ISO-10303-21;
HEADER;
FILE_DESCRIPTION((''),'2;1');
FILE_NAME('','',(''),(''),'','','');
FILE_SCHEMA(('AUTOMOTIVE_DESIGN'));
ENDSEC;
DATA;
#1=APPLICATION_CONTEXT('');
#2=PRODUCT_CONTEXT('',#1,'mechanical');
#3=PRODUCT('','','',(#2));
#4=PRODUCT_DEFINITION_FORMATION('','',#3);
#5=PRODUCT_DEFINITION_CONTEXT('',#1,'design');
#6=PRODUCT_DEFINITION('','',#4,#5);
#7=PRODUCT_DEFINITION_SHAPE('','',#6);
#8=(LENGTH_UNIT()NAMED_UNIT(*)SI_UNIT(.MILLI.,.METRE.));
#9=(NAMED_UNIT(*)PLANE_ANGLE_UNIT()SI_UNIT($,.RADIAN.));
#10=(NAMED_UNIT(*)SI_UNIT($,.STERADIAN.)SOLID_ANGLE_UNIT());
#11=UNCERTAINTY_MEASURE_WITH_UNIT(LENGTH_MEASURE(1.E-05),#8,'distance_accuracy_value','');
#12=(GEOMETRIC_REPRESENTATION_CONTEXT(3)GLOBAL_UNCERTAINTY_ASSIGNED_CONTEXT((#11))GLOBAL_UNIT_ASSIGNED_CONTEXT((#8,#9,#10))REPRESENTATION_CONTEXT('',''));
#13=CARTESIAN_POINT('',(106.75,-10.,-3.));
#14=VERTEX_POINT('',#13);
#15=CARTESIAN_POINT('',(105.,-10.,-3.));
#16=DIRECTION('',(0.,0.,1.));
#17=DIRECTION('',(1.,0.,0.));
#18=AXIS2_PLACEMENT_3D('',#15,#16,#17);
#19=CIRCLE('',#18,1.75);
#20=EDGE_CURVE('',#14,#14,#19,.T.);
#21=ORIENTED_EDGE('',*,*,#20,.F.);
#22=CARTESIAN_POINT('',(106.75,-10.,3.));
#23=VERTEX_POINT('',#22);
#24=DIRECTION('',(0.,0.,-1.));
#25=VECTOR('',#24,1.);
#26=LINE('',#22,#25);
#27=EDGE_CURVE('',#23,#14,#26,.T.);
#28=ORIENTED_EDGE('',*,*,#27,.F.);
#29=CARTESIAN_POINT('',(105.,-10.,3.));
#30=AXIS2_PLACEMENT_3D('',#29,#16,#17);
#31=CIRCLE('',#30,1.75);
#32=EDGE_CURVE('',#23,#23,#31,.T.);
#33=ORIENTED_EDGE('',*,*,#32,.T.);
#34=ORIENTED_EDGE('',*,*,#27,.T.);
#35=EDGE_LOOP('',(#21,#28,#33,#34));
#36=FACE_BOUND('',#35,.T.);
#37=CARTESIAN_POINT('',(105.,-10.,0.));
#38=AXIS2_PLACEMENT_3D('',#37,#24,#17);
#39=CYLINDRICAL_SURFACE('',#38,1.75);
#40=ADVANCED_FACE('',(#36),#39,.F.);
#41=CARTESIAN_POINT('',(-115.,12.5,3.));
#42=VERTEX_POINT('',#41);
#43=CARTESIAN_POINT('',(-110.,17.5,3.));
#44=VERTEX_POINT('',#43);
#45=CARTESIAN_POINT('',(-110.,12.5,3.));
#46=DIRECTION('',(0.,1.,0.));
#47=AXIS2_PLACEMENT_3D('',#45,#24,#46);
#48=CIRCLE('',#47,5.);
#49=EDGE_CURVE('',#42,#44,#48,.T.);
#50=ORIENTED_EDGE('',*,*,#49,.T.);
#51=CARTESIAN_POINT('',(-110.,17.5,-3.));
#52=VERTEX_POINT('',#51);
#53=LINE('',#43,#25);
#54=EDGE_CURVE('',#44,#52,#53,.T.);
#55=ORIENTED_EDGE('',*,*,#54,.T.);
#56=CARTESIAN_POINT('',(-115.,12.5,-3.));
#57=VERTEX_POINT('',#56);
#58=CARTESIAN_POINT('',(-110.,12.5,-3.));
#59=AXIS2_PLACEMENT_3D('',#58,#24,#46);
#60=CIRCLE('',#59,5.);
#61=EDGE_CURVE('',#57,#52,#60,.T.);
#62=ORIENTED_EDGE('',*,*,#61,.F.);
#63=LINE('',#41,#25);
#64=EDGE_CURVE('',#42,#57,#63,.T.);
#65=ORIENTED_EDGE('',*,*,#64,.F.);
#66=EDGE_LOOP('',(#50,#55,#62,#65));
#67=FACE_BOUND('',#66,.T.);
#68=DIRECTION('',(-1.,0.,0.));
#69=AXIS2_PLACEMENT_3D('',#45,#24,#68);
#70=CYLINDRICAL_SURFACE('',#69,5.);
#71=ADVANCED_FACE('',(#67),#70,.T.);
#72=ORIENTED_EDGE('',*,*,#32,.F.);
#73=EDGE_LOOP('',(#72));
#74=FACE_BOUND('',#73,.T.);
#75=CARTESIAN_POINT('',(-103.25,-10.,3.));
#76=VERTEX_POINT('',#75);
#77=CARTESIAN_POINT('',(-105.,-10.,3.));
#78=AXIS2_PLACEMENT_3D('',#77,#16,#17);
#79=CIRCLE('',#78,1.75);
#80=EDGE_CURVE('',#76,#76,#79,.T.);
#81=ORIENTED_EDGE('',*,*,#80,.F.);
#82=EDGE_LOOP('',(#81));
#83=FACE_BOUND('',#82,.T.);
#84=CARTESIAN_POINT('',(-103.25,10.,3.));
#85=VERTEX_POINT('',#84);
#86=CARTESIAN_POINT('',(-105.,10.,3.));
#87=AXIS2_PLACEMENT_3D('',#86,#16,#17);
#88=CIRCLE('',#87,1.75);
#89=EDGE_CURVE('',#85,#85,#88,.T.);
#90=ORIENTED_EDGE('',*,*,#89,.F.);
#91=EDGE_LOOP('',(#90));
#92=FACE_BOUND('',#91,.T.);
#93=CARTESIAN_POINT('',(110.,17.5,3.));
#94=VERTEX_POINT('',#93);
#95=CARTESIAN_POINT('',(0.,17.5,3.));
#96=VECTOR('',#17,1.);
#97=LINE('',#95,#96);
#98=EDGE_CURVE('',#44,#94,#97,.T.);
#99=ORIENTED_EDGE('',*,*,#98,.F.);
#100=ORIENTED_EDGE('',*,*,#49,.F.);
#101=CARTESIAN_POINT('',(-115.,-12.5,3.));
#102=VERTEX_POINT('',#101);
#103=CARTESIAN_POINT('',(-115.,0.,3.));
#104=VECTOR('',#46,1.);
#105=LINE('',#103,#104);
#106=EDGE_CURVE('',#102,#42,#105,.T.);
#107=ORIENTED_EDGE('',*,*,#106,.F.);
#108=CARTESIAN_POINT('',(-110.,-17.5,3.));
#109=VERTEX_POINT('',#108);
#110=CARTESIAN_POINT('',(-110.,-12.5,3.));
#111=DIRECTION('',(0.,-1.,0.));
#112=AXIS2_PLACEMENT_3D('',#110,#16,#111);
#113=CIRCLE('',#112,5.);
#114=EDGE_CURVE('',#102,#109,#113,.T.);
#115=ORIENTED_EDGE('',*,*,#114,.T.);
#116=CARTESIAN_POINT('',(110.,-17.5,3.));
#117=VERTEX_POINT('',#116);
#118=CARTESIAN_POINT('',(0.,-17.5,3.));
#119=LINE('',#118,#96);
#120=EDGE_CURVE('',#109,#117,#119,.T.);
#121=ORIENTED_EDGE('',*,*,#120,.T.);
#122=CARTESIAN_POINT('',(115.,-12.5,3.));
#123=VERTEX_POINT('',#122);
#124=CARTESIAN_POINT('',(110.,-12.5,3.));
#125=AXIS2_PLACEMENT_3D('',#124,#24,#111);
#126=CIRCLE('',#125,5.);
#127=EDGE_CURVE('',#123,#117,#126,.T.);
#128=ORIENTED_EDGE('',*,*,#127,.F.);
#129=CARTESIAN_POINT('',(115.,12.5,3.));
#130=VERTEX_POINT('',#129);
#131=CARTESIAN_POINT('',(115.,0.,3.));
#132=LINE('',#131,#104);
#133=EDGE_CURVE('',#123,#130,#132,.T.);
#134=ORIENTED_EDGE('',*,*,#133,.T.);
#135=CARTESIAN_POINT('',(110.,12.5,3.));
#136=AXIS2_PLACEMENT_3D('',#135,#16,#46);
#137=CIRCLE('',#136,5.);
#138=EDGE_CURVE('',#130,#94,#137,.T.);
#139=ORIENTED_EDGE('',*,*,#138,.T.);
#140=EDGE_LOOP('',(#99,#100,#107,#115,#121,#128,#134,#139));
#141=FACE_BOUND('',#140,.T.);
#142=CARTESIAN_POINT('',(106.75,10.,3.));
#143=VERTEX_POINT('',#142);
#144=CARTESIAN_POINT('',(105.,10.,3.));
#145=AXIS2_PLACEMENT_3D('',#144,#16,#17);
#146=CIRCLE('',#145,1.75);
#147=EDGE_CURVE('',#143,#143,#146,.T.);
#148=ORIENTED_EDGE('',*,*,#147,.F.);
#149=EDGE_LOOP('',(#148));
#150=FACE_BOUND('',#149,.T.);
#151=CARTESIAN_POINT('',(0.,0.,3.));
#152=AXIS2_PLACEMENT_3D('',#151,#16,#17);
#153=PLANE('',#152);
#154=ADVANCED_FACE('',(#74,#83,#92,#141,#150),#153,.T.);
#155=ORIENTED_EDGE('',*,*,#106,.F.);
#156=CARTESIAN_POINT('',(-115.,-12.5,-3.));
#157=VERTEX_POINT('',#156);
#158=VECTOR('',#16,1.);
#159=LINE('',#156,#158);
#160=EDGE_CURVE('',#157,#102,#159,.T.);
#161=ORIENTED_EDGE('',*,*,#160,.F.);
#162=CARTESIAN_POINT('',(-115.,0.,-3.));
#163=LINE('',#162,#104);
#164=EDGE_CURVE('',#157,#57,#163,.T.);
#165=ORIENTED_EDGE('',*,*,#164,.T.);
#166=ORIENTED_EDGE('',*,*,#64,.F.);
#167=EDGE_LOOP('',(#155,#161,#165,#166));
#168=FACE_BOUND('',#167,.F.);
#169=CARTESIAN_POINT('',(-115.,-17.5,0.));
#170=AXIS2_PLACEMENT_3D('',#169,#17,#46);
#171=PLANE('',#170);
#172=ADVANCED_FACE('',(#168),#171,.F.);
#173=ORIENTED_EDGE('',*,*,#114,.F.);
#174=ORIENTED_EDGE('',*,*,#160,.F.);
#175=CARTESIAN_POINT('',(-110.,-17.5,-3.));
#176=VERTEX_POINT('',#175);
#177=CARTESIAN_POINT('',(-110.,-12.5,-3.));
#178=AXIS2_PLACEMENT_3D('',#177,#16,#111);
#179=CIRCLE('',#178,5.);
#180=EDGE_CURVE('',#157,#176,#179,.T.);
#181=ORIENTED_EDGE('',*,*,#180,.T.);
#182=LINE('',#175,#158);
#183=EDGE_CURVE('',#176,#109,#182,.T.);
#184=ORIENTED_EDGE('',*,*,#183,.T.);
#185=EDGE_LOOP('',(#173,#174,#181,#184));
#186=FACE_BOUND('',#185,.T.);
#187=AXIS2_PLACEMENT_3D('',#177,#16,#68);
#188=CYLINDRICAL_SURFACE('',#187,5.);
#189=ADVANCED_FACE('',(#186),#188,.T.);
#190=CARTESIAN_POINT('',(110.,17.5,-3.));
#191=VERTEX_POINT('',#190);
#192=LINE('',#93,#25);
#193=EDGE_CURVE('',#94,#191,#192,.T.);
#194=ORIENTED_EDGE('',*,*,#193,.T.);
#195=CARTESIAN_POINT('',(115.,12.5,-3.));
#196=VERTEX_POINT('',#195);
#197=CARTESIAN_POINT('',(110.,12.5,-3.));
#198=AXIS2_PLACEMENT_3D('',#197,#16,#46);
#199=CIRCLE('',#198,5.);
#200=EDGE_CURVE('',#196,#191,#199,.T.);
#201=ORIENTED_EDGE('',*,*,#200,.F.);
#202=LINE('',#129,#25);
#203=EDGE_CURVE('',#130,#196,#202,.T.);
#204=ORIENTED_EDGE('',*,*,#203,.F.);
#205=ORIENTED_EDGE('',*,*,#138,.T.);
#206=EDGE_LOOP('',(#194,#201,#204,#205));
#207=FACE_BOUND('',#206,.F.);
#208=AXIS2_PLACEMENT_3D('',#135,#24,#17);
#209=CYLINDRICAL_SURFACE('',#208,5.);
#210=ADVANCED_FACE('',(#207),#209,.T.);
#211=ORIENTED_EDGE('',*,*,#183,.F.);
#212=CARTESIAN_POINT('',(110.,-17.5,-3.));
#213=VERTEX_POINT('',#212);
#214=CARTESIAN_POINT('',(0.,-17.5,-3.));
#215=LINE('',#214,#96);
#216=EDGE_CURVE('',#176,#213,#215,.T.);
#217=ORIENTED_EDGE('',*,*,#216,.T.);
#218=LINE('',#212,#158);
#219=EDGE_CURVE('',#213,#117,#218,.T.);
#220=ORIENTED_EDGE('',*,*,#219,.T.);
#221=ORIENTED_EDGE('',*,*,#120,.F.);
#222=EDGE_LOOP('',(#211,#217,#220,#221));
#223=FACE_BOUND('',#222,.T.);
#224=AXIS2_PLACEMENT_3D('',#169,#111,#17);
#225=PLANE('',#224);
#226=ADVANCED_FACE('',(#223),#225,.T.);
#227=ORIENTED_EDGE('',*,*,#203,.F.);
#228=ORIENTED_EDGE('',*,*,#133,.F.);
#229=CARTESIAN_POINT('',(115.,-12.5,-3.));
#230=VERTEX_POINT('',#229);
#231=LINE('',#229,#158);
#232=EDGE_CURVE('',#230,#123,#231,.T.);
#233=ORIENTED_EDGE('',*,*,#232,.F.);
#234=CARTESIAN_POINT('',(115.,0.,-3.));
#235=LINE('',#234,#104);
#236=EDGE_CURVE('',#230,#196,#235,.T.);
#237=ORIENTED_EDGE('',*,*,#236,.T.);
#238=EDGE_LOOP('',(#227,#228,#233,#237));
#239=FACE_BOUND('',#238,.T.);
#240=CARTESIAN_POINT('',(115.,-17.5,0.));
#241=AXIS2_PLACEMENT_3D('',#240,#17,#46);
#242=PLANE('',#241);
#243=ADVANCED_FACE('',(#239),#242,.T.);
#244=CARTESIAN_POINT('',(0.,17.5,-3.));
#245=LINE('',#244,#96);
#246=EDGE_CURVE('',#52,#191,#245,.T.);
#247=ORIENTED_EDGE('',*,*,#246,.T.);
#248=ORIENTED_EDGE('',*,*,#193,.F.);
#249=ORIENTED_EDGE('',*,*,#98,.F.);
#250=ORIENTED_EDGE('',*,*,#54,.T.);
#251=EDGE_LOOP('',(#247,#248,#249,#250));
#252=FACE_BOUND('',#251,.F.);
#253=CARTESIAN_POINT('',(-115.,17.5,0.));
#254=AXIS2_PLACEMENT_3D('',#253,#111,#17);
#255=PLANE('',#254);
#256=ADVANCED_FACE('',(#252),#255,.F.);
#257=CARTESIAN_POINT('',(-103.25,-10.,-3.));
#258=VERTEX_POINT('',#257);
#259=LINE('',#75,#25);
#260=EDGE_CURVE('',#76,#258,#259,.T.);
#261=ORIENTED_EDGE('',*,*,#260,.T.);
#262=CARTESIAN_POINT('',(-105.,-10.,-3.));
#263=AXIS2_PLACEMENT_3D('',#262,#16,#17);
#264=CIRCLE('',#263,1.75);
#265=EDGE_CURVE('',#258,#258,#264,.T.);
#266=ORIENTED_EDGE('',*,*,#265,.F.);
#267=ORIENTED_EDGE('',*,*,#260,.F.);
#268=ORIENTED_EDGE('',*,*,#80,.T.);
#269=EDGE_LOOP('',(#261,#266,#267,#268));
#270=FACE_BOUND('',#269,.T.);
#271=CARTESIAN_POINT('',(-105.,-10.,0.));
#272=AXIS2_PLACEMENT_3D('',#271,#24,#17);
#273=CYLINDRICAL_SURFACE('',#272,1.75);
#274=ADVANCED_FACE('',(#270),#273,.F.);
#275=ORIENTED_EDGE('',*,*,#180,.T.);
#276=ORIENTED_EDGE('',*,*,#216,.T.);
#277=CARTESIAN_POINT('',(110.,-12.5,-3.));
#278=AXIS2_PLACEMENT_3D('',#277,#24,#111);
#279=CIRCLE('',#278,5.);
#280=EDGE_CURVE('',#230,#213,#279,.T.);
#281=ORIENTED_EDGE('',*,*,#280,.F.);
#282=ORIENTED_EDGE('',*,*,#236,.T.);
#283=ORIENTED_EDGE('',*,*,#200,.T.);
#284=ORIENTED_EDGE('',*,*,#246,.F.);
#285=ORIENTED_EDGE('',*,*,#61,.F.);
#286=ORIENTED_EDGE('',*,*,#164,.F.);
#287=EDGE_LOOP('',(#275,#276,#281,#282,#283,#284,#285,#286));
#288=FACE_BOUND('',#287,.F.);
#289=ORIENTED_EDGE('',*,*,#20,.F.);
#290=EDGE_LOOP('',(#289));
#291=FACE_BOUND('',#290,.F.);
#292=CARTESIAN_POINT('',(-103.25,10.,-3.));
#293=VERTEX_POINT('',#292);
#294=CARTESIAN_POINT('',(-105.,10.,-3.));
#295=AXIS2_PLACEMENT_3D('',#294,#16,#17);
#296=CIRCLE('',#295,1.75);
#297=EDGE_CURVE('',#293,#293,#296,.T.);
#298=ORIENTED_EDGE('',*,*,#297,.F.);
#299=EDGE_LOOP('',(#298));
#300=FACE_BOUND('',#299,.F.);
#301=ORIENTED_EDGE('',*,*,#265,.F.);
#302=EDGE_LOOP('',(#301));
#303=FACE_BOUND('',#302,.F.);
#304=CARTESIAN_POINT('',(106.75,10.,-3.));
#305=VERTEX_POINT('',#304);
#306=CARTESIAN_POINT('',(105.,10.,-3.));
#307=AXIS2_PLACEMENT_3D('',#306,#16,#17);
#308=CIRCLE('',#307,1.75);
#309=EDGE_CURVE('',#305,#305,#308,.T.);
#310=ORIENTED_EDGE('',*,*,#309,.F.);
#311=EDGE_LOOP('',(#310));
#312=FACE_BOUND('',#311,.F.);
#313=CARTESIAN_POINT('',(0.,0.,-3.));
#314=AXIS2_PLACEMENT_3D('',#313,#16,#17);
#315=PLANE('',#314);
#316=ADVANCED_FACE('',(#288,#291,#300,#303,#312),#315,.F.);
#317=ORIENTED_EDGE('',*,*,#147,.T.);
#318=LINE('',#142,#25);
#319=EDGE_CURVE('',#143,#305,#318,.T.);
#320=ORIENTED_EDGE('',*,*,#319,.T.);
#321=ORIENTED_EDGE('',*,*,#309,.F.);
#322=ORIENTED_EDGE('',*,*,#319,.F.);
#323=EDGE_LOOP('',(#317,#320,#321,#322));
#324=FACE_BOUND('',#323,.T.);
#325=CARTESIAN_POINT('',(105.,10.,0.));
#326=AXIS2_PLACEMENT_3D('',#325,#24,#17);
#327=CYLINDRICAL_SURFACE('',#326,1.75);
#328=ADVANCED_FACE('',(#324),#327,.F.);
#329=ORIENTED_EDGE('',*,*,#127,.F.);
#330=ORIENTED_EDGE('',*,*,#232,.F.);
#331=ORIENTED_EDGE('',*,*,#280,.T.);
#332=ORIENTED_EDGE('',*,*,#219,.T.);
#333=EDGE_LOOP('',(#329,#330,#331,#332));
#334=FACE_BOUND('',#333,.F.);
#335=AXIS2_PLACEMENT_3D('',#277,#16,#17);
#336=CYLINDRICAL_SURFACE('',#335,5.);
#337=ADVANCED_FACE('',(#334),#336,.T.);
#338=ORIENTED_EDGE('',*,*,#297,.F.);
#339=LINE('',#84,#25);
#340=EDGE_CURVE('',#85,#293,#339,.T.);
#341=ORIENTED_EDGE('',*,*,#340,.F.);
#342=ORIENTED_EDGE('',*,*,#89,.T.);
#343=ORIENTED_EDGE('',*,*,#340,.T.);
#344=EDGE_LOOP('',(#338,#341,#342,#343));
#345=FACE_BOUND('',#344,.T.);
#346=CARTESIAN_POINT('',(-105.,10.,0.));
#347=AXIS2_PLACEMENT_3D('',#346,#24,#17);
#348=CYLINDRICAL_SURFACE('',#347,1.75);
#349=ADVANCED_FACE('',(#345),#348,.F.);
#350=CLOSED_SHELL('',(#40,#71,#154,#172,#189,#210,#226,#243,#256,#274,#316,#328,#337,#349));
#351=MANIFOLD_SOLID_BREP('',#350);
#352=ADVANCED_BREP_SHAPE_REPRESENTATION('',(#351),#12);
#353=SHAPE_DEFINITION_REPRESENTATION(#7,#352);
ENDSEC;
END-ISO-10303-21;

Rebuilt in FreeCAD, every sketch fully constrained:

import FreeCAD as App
import Part
import Sketcher
from FreeCAD import Vector


def edges_at(feature, points):
    """Names of the edges that pass closest to the given points."""
    edges = feature.Shape.Edges
    near = lambda p: min(range(len(edges)), key=lambda i: edges[i].distToShape(Part.Vertex(*p))[0])
    return sorted({f"Edge{near(p) + 1}" for p in points})

doc = App.newDocument("Part")
body = doc.addObject("PartDesign::Body", "Body")

# Sketch on XY plane
sketch1 = doc.addObject("Sketcher::SketchObject", "Sketch")
body.addObject(sketch1)
sketch1.AttachmentSupport = (doc.XY_Plane, [""])
sketch1.MapMode = "FlatFace"
sketch1.addGeometry([
    Part.LineSegment(Vector(-115, 17.5, 0), Vector(-115, -17.5, 0)),  # 0
    Part.LineSegment(Vector(-115, -17.5, 0), Vector(115, -17.5, 0)),  # 1
    Part.LineSegment(Vector(115, -17.5, 0), Vector(115, 17.5, 0)),  # 2
    Part.LineSegment(Vector(115, 17.5, 0), Vector(-115, 17.5, 0)),  # 3
    Part.Circle(Vector(-105, -10, 0), Vector(0, 0, 1), 1.75),  # 4
    Part.Circle(Vector(105, -10, 0), Vector(0, 0, 1), 1.75),  # 5
    Part.Circle(Vector(-105, 10, 0), Vector(0, 0, 1), 1.75),  # 6
    Part.Circle(Vector(105, 10, 0), Vector(0, 0, 1), 1.75),  # 7
], False)
sketch1.addConstraint([
    Sketcher.Constraint("Coincident", 0, 2, 1, 1),
    Sketcher.Constraint("Coincident", 1, 2, 2, 1),
    Sketcher.Constraint("Coincident", 2, 2, 3, 1),
    Sketcher.Constraint("Coincident", 3, 2, 0, 1),
    Sketcher.Constraint("Vertical", 0),
    Sketcher.Constraint("Horizontal", 1),
    Sketcher.Constraint("Vertical", 2),
    Sketcher.Constraint("Horizontal", 3),
    Sketcher.Constraint("Equal", 4, 5),
    Sketcher.Constraint("Equal", 5, 6),
    Sketcher.Constraint("Equal", 6, 7),
    Sketcher.Constraint("Symmetric", 5, 3, 6, 3, -1, 1),
    Sketcher.Constraint("Symmetric", 4, 3, 7, 3, -1, 1),
    Sketcher.Constraint("Symmetric", 0, 2, 2, 2, -1, 1),
    Sketcher.Constraint("Symmetric", 4, 3, 5, 3, -2),
    Sketcher.Constraint("Diameter", 4, 3.5),
    Sketcher.Constraint("DistanceX", 1, 1, 1, 2, 230.0),
    Sketcher.Constraint("DistanceY", 0, 2, 0, 1, 35.0),
    Sketcher.Constraint("DistanceX", 4, 3, -1, 1, 105.0),
    Sketcher.Constraint("DistanceY", 4, 3, -1, 1, 10.0),
])
pad1 = doc.addObject("PartDesign::Pad", "Pad")
body.addObject(pad1)
pad1.Profile = sketch1
pad1.Length = 6
pad1.Midplane = True
doc.recompute()

fillet = doc.addObject("PartDesign::Fillet", "Fillet")
body.addObject(fillet)
fillet.Base = (pad1, edges_at(pad1, [
    (-115, 17.5, 0),
    (115, 17.5, 0),
    (115, -17.5, 0),
    (-115, -17.5, 0),
]))
fillet.Radius = 5

doc.recompute()
